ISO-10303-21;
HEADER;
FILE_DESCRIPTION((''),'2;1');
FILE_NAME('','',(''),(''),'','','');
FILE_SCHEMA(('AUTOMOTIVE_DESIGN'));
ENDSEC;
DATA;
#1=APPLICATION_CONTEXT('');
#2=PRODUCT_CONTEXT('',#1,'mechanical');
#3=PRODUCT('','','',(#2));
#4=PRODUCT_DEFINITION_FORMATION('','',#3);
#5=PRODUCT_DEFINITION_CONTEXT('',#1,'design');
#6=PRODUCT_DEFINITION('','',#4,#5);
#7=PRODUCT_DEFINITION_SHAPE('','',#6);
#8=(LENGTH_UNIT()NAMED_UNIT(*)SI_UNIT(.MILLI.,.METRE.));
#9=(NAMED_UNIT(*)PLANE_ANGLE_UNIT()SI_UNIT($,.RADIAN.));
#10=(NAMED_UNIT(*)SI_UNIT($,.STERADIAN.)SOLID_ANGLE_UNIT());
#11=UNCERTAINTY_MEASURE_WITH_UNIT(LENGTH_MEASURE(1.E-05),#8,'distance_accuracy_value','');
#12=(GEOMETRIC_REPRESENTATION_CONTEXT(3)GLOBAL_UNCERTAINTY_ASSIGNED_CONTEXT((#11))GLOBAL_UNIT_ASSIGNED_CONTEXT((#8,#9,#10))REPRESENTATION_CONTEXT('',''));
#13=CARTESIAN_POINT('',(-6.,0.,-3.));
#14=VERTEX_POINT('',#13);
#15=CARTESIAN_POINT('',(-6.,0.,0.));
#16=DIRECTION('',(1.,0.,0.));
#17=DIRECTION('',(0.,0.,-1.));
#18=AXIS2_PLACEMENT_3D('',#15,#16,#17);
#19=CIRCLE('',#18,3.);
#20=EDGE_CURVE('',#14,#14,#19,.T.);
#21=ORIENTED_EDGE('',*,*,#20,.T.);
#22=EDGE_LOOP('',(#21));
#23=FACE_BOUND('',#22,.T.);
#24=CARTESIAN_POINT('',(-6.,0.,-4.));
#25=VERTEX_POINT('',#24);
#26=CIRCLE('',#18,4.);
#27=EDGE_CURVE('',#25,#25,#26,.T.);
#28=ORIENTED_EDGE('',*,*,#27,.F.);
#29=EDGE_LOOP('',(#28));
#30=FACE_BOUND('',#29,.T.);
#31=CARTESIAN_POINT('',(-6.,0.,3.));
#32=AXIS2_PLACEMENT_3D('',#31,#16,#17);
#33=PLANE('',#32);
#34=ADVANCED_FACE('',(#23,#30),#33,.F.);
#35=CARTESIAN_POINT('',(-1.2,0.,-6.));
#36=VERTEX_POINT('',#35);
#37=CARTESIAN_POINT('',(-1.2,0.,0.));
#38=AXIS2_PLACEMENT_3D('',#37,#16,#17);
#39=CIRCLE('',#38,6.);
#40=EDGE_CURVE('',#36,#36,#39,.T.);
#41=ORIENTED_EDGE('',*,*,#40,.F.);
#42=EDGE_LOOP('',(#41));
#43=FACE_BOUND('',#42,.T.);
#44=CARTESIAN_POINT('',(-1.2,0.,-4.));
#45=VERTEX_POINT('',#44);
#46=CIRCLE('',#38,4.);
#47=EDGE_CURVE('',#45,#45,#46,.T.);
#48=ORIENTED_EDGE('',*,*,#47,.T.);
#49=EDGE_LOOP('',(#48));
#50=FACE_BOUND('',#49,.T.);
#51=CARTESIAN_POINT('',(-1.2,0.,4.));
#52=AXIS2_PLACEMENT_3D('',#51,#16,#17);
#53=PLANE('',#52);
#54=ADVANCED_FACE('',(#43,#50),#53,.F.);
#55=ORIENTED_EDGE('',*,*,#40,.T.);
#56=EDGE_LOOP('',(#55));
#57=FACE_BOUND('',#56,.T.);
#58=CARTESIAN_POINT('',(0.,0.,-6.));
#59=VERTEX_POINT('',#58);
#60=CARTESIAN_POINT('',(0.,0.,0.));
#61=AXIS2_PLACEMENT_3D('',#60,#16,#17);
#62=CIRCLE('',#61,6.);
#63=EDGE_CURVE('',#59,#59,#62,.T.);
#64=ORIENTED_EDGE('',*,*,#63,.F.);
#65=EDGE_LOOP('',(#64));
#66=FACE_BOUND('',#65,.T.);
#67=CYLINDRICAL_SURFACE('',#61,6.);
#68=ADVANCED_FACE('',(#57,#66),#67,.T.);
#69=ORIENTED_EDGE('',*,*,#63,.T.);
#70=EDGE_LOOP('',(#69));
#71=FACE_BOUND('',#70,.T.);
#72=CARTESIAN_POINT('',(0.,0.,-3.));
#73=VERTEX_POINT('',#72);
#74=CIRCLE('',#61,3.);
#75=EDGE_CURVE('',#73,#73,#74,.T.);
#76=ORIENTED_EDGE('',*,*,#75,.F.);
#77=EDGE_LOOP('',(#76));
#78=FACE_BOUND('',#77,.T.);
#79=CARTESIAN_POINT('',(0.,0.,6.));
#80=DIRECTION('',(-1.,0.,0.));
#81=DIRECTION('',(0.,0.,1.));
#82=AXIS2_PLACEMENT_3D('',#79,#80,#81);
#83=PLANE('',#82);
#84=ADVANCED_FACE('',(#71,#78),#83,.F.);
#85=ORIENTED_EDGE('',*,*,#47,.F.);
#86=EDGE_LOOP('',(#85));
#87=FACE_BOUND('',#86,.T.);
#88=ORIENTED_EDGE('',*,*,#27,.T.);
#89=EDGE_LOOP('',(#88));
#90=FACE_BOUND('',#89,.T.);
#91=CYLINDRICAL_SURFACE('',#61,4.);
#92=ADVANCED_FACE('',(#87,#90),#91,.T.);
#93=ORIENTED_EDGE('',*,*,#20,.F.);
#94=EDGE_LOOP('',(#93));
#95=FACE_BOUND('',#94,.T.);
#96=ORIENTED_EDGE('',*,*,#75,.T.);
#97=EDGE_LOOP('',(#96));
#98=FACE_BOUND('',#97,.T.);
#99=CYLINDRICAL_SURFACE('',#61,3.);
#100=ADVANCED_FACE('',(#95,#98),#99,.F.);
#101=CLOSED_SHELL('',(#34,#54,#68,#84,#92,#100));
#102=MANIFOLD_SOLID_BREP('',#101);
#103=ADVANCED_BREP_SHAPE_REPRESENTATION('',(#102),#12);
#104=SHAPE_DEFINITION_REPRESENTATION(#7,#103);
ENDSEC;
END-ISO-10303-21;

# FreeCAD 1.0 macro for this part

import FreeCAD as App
import Part
import Sketcher
Q = App.Units.Quantity


def add_polygon(sketch, points):
    """Adds a closed chain of lines whose ends are joined by coincident constraints."""
    first, n = sketch.GeometryCount, len(points)
    for a, b in zip(points, points[1:] + points[:1]):
        sketch.addGeometry(Part.LineSegment(App.Vector(*a, 0), App.Vector(*b, 0)), False)
    for i in range(n):
        sketch.addConstraint(Sketcher.Constraint("Coincident", first + i, 2, first + (i + 1) % n, 1))

doc = App.newDocument("Part")
params = doc.addObject("Spreadsheet::Sheet", "Params")
for row, (alias, value) in enumerate([
    ("sketch1_width", "6 mm"),
    ("sketch1_height", "3 mm"),
    ("sketch1_height2", "1 mm"),
    ("sketch1_width2", "4.8 mm"),
    ("revolution_angle", "360 deg"),
], start=1):
    params.set(f"A{row}", alias)
    params.set(f"B{row}", "=" + value)
    params.setAlias(f"B{row}", alias)

body = doc.addObject("PartDesign::Body", "Body")

sketch1 = body.newObject("Sketcher::SketchObject", "Sketch")
sketch1.AttachmentSupport = (doc.getObject("XZ_Plane"), [""])
sketch1.MapMode = "FlatFace"
add_polygon(sketch1, [(0, 6), (0, 3), (-6, 3), (-6, 4), (-1.2, 4), (-1.2, 6)])
sketch1.addConstraint(Sketcher.Constraint("Vertical", 0))
sketch1.addConstraint(Sketcher.Constraint("Horizontal", 1))
sketch1.addConstraint(Sketcher.Constraint("Vertical", 2))
sketch1.addConstraint(Sketcher.Constraint("Horizontal", 3))
sketch1.addConstraint(Sketcher.Constraint("Vertical", 4))
sketch1.addConstraint(Sketcher.Constraint("Horizontal", 5))
sketch1.addConstraint(Sketcher.Constraint("PointOnObject", 0, 2, -2))
sketch1.addConstraint(Sketcher.Constraint("DistanceX", 1, 2, 1, 1, Q("6 mm")))
sketch1.addConstraint(Sketcher.Constraint("DistanceY", 0, 2, 0, 1, Q("3 mm")))
sketch1.addConstraint(Sketcher.Constraint("DistanceY", 2, 1, 2, 2, Q("1 mm")))
sketch1.addConstraint(Sketcher.Constraint("DistanceX", 3, 1, 3, 2, Q("4.8 mm")))
sketch1.addConstraint(Sketcher.Constraint("DistanceY", -1, 1, 0, 2, Q("3 mm")))
sketch1.setExpression("Constraints[13]", "Params.sketch1_width")
sketch1.setExpression("Constraints[14]", "Params.sketch1_height")
sketch1.setExpression("Constraints[15]", "Params.sketch1_height2")
sketch1.setExpression("Constraints[16]", "Params.sketch1_width2")
revolution = body.newObject("PartDesign::Revolution", "Revolution")
revolution.Profile = sketch1
revolution.ReferenceAxis = (sketch1, ["H_Axis"])
revolution.setExpression("Angle", "Params.revolution_angle")

doc.recompute()
